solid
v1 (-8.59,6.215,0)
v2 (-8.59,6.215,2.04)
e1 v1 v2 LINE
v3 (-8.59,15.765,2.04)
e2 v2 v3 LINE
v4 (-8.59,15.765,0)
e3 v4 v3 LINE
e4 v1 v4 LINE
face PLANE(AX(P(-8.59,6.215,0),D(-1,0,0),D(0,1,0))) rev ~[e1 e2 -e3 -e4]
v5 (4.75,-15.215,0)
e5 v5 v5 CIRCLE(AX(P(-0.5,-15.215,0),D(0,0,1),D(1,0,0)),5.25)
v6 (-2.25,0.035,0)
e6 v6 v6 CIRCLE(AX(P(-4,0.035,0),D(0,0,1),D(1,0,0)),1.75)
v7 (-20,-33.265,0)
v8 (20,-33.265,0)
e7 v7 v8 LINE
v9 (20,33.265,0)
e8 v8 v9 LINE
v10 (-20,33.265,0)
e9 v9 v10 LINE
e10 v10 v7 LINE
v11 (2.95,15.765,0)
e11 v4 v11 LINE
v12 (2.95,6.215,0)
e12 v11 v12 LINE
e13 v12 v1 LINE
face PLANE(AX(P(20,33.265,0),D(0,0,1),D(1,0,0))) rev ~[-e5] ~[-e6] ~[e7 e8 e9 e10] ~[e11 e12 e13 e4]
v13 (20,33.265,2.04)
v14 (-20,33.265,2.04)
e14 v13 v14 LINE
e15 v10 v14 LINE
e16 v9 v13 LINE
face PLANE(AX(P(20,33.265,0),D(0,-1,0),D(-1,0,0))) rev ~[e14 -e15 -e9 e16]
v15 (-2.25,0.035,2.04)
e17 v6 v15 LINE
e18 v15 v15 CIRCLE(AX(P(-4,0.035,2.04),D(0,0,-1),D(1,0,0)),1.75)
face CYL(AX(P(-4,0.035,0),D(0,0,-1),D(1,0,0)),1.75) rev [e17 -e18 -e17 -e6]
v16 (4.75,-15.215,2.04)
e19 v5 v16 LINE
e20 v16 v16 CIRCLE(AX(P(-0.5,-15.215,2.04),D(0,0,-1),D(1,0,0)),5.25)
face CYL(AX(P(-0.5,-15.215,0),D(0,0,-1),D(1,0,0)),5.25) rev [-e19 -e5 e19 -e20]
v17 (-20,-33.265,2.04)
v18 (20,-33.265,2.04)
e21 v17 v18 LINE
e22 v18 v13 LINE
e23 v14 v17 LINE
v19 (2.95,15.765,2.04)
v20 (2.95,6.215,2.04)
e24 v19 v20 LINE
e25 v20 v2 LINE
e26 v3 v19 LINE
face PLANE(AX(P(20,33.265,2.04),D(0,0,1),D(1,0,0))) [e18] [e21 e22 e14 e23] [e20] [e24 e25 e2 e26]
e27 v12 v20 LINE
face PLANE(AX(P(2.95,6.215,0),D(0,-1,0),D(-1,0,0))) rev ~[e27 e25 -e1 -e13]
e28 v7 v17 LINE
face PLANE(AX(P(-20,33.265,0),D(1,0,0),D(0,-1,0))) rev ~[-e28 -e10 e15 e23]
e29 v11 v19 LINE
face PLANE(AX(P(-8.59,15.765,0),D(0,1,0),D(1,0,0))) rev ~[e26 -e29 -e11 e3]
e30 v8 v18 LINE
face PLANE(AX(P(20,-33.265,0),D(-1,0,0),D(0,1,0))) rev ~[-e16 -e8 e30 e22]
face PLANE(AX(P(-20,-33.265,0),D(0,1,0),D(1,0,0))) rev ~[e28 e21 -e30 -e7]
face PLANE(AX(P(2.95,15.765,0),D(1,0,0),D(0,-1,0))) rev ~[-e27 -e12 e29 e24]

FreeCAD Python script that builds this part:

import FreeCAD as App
import Part
import Sketcher
Q = App.Units.Quantity


def add_polygon(sketch, points):
    """Adds a closed chain of lines whose ends are joined by coincident constraints."""
    first, n = sketch.GeometryCount, len(points)
    for a, b in zip(points, points[1:] + points[:1]):
        sketch.addGeometry(Part.LineSegment(App.Vector(*a, 0), App.Vector(*b, 0)), False)
    for i in range(n):
        sketch.addConstraint(Sketcher.Constraint("Coincident", first + i, 2, first + (i + 1) % n, 1))

doc = App.newDocument("Part")
body = doc.addObject("PartDesign::Body", "Body")

# Sketch on XY plane
sketch1 = body.newObject("Sketcher::SketchObject", "Sketch")
sketch1.AttachmentSupport = (doc.getObject("XY_Plane"), [""])
sketch1.MapMode = "FlatFace"
add_polygon(sketch1, [(20, -33), (20, 33), (-20, 33), (-20, -33)])  # lines 0-3
sketch1.addConstraint([
    Sketcher.Constraint("Vertical", 0),
    Sketcher.Constraint("Horizontal", 1),
    Sketcher.Constraint("Vertical", 2),
    Sketcher.Constraint("Horizontal", 3),
    Sketcher.Constraint("Symmetric", 0, 2, 2, 2, -1, 1),
    Sketcher.Constraint("DistanceX", 1, 2, 1, 1, Q("40 mm")),
    Sketcher.Constraint("DistanceY", 0, 1, 0, 2, Q("66.53 mm")),
])
pad1 = body.newObject("PartDesign::Pad", "Pad")
pad1.Profile = sketch1
pad1.Length = 2.04

# Sketch on XY plane
sketch2 = body.newObject("Sketcher::SketchObject", "Sketch001")
sketch2.AttachmentSupport = (doc.getObject("XY_Plane"), [""])
sketch2.MapMode = "FlatFace"
add_polygon(sketch2, [(-8.6, 6.2), (3, 6.2), (3, 15.8), (-8.6, 15.8)])  # lines 0-3
sketch2.addGeometry(Part.Circle(App.Vector(-0.5, -15.2, 0), App.Vector(0, 0, 1), 5.2), False)  # 4
sketch2.addGeometry(Part.Circle(App.Vector(-4, 0, 0), App.Vector(0, 0, 1), 1.8), False)  # 5
sketch2.addConstraint([
    Sketcher.Constraint("Horizontal", 0),
    Sketcher.Constraint("Vertical", 1),
    Sketcher.Constraint("Horizontal", 2),
    Sketcher.Constraint("Vertical", 3),
    Sketcher.Constraint("Diameter", 4, Q("10.5 mm")),
    Sketcher.Constraint("Diameter", 5, Q("3.5 mm")),
    Sketcher.Constraint("DistanceX", 0, 1, 0, 2, Q("11.54 mm")),
    Sketcher.Constraint("DistanceY", 1, 1, 1, 2, Q("9.55 mm")),
    Sketcher.Constraint("DistanceX", 5, 3, 4, 3, Q("3.5 mm")),
    Sketcher.Constraint("DistanceX", 5, 3, -1, 1, Q("4 mm")),
    Sketcher.Constraint("DistanceX", -1, 1, 0, 2, Q("2.95 mm")),
    Sketcher.Constraint("DistanceY", 4, 3, 5, 3, Q("15.25 mm")),
    Sketcher.Constraint("DistanceY", 5, 3, 0, 2, Q("6.18 mm")),
    Sketcher.Constraint("DistanceY", 4, 3, -1, 1, Q("15.215 mm")),
])
pocket1 = body.newObject("PartDesign::Pocket", "Pocket")
pocket1.Profile = sketch2
pocket1.Type = "UpToFirst"
pocket1.Reversed = True

doc.recompute()
